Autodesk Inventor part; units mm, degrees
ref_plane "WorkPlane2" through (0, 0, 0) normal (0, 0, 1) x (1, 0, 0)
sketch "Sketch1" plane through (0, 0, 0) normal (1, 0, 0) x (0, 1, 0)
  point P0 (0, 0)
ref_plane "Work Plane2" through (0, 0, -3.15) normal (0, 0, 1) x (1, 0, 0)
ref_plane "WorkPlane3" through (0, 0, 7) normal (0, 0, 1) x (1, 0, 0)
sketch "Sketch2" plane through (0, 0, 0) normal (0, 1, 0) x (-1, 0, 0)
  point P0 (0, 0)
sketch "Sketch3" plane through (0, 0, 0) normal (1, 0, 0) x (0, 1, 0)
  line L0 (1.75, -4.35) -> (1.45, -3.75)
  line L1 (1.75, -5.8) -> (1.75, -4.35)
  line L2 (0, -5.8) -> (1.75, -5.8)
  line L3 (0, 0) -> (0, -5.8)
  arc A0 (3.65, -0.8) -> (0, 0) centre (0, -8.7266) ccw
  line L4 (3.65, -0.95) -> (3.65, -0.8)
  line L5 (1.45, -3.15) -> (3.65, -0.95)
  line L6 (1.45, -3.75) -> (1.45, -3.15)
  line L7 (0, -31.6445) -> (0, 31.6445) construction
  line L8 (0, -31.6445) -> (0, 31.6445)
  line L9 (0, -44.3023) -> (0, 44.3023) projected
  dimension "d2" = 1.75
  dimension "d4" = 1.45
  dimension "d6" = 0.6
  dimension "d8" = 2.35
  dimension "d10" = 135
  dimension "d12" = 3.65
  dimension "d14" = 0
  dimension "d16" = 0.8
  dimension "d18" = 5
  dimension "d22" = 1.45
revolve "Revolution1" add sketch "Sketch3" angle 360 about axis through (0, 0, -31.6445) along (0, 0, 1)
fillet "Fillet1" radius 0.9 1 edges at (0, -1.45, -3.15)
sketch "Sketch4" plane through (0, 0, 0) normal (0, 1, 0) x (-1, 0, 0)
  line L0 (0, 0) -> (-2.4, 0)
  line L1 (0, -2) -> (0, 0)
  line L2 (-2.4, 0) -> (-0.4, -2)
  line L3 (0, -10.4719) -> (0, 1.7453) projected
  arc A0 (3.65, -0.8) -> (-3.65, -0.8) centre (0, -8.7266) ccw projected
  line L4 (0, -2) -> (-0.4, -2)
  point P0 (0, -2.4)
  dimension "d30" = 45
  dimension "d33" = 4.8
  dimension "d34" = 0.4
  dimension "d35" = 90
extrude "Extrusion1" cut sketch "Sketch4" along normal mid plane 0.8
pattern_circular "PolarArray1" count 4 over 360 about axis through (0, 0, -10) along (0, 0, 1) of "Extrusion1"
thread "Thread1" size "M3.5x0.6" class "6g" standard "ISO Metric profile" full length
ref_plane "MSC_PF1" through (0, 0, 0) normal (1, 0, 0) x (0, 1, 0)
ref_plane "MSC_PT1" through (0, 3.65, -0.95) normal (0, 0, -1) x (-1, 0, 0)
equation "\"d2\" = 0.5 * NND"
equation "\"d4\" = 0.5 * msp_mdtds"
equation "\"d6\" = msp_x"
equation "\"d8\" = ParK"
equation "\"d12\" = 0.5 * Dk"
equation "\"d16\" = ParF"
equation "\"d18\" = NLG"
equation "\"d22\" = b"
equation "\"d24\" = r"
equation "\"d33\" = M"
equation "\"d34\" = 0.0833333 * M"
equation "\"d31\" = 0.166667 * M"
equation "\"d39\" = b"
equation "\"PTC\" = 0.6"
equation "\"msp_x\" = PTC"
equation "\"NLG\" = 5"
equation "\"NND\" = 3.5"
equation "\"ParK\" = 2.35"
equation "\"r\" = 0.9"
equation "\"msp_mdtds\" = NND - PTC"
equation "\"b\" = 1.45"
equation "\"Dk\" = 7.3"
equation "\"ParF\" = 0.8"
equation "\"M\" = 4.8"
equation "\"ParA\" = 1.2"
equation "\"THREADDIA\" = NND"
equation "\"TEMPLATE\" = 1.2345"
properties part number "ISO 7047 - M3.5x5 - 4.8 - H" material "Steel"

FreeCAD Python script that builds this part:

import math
import FreeCAD as App
import Part
import Sketcher

V = App.Vector
Q = App.Units.Quantity


def edges_at(feature, points):
    """Names of the edges that pass closest to the given points."""
    edges = feature.Shape.Edges
    near = lambda p: min(range(len(edges)), key=lambda i: edges[i].distToShape(Part.Vertex(*p))[0])
    return sorted({f"Edge{near(p) + 1}" for p in points})

doc = App.newDocument("Part")
params = doc.addObject("Spreadsheet::Sheet", "Params")
for row, (alias, value) in enumerate([
    ("sketch1_height", "0.6 mm"),
    ("sketch1_width", "1.75 mm"),
    ("sketch1_height2", "1.45 mm"),
    ("revolution_angle", "360 deg"),
    ("fillet_radius", "0.9 mm"),
    ("sketch2_width", "0.4 mm"),
    ("sketch2_height", "2 mm"),
    ("pocket1_length", "0.8 mm"),
], start=1):
    params.set(f"A{row}", alias)
    params.set(f"B{row}", "=" + value)
    params.setAlias(f"B{row}", alias)

body = doc.addObject("PartDesign::Body", "Body")

# Sketch on YZ plane
sketch1 = body.newObject("Sketcher::SketchObject", "Sketch")
sketch1.AttachmentSupport = (doc.getObject("YZ_Plane"), [""])
sketch1.MapMode = "FlatFace"
sketch1.addGeometry(Part.LineSegment(V(1.75, -5.8, 0), V(1.75, -4.35, 0)), False)
sketch1.addGeometry(Part.LineSegment(V(1.75, -4.35, 0), V(1.45, -3.75, 0)), False)
sketch1.addGeometry(Part.LineSegment(V(1.45, -3.75, 0), V(1.45, -3.15, 0)), False)
sketch1.addGeometry(Part.LineSegment(V(1.45, -3.15, 0), V(3.65, -0.95, 0)), False)
sketch1.addGeometry(Part.LineSegment(V(3.65, -0.95, 0), V(3.65, -0.8, 0)), False)
sketch1.addGeometry(Part.ArcOfCircle(Part.Circle(V(0, -8.73, 0), V(0, 0, 1), 8.73), math.radians(65), math.radians(90)), False)
sketch1.addGeometry(Part.LineSegment(V(0, 0, 0), V(0, -5.8, 0)), False)
sketch1.addGeometry(Part.LineSegment(V(0, -5.8, 0), V(1.75, -5.8, 0)), False)
sketch1.addConstraint(Sketcher.Constraint("Coincident", 0, 2, 1, 1))
sketch1.addConstraint(Sketcher.Constraint("Coincident", 1, 2, 2, 1))
sketch1.addConstraint(Sketcher.Constraint("Coincident", 2, 2, 3, 1))
sketch1.addConstraint(Sketcher.Constraint("Coincident", 3, 2, 4, 1))
sketch1.addConstraint(Sketcher.Constraint("Coincident", 4, 2, 5, 1))
sketch1.addConstraint(Sketcher.Constraint("Coincident", 5, 2, 6, 1))
sketch1.addConstraint(Sketcher.Constraint("Coincident", 6, 2, 7, 1))
sketch1.addConstraint(Sketcher.Constraint("Coincident", 7, 2, 0, 1))
sketch1.addConstraint(Sketcher.Constraint("Vertical", 0))
sketch1.addConstraint(Sketcher.Constraint("Vertical", 2))
sketch1.addConstraint(Sketcher.Constraint("Vertical", 4))
sketch1.addConstraint(Sketcher.Constraint("Vertical", 6))
sketch1.addConstraint(Sketcher.Constraint("Horizontal", 7))
sketch1.addConstraint(Sketcher.Constraint("Coincident", 5, 2, -1, 1))
sketch1.addConstraint(Sketcher.Constraint("PointOnObject", 5, 3, -2))
sketch1.addConstraint(Sketcher.Constraint("DistanceY", 2, 1, 2, 2, 0.6))
sketch1.addConstraint(Sketcher.Constraint("DistanceX", 7, 1, 7, 2, 1.75))
sketch1.addConstraint(Sketcher.Constraint("DistanceY", 0, 1, 0, 2, 1.45))
sketch1.addConstraint(Sketcher.Constraint("DistanceY", 4, 2, -1, 1, 0.8))
sketch1.addConstraint(Sketcher.Constraint("DistanceY", 0, 2, 1, 2, 0.6))
sketch1.addConstraint(Sketcher.Constraint("DistanceX", -1, 1, 1, 2, 1.45))
sketch1.addConstraint(Sketcher.Constraint("DistanceX", -1, 1, 3, 2, 3.65))
sketch1.addConstraint(Sketcher.Constraint("Angle", 3, Q("45 deg")))
sketch1.addConstraint(Sketcher.Constraint("DistanceY", 2, 2, 4, 2, 2.35))
sketch1.setExpression("Constraints[15]", "Params.sketch1_height")
sketch1.setExpression("Constraints[16]", "Params.sketch1_width")
sketch1.setExpression("Constraints[17]", "Params.sketch1_height2")
revolution = body.newObject("PartDesign::Revolution", "Revolution")
revolution.Profile = sketch1
revolution.ReferenceAxis = (sketch1, ["V_Axis"])
revolution.setExpression("Angle", "Params.revolution_angle")
doc.recompute()

fillet = body.newObject("PartDesign::Fillet", "Fillet")
fillet.Base = (revolution, edges_at(revolution, [(0, -1.45, -3.15)]))
fillet.setExpression("Radius", "Params.fillet_radius")

# Sketch on XZ plane
sketch2 = body.newObject("Sketcher::SketchObject", "Sketch001")
sketch2.AttachmentSupport = (doc.getObject("XZ_Plane"), [""])
sketch2.MapMode = "FlatFace"
sketch2.addGeometry(Part.LineSegment(V(2.4, 0, 0), V(0.4, -2, 0)), False)
sketch2.addGeometry(Part.LineSegment(V(0.4, -2, 0), V(0, -2, 0)), False)
sketch2.addGeometry(Part.LineSegment(V(0, -2, 0), V(0, 0, 0)), False)
sketch2.addGeometry(Part.LineSegment(V(0, 0, 0), V(2.4, 0, 0)), False)
sketch2.addConstraint(Sketcher.Constraint("Coincident", 0, 2, 1, 1))
sketch2.addConstraint(Sketcher.Constraint("Coincident", 1, 2, 2, 1))
sketch2.addConstraint(Sketcher.Constraint("Coincident", 2, 2, 3, 1))
sketch2.addConstraint(Sketcher.Constraint("Coincident", 3, 2, 0, 1))
sketch2.addConstraint(Sketcher.Constraint("Horizontal", 1))
sketch2.addConstraint(Sketcher.Constraint("Vertical", 2))
sketch2.addConstraint(Sketcher.Constraint("Horizontal", 3))
sketch2.addConstraint(Sketcher.Constraint("Coincident", 2, 2, -1, 1))
sketch2.addConstraint(Sketcher.Constraint("DistanceX", 1, 2, 1, 1, 0.4))
sketch2.addConstraint(Sketcher.Constraint("DistanceY", 2, 1, 2, 2, 2.0))
sketch2.addConstraint(Sketcher.Constraint("Angle", 0, Q("-135 deg")))
sketch2.setExpression("Constraints[8]", "Params.sketch2_width")
sketch2.setExpression("Constraints[9]", "Params.sketch2_height")
pocket1 = body.newObject("PartDesign::Pocket", "Pocket")
pocket1.Profile = sketch2
pocket1.setExpression("Length", "Params.pocket1_length")
pocket1.Midplane = True
doc.recompute()

polarpattern = body.newObject("PartDesign::PolarPattern", "PolarPattern")
polarpattern.Originals = [pocket1]
polarpattern.Axis = (doc.getObject("Z_Axis"), [""])
polarpattern.Angle = 360
polarpattern.Occurrences = 4
body.Tip = polarpattern

doc.recompute()
